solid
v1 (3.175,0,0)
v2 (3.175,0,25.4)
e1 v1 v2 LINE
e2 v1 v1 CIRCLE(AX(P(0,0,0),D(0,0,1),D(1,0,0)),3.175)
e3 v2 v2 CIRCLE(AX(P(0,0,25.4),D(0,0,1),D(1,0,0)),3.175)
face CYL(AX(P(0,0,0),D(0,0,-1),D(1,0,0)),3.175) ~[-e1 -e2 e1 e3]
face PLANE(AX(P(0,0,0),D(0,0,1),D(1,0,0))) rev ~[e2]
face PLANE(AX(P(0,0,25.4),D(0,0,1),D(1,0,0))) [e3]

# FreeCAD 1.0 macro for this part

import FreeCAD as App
import Part
import Sketcher

V = App.Vector
Q = App.Units.Quantity

doc = App.newDocument("Part")
body = doc.addObject("PartDesign::Body", "Body")

# Sketch on XY plane
sketch1 = body.newObject("Sketcher::SketchObject", "Sketch")
sketch1.AttachmentSupport = (doc.getObject("XY_Plane"), [""])
sketch1.MapMode = "FlatFace"
sketch1.addGeometry(Part.Circle(V(0, 0, 0), V(0, 0, 1), 3.2), False)
sketch1.addConstraint([
    Sketcher.Constraint("Coincident", 0, 3, -1, 1),
    Sketcher.Constraint("Diameter", 0, Q("0.25 in")),
])
pad1 = body.newObject("PartDesign::Pad", "Pad")
pad1.Profile = sketch1
pad1.Length = Q("1 in")

doc.recompute()
